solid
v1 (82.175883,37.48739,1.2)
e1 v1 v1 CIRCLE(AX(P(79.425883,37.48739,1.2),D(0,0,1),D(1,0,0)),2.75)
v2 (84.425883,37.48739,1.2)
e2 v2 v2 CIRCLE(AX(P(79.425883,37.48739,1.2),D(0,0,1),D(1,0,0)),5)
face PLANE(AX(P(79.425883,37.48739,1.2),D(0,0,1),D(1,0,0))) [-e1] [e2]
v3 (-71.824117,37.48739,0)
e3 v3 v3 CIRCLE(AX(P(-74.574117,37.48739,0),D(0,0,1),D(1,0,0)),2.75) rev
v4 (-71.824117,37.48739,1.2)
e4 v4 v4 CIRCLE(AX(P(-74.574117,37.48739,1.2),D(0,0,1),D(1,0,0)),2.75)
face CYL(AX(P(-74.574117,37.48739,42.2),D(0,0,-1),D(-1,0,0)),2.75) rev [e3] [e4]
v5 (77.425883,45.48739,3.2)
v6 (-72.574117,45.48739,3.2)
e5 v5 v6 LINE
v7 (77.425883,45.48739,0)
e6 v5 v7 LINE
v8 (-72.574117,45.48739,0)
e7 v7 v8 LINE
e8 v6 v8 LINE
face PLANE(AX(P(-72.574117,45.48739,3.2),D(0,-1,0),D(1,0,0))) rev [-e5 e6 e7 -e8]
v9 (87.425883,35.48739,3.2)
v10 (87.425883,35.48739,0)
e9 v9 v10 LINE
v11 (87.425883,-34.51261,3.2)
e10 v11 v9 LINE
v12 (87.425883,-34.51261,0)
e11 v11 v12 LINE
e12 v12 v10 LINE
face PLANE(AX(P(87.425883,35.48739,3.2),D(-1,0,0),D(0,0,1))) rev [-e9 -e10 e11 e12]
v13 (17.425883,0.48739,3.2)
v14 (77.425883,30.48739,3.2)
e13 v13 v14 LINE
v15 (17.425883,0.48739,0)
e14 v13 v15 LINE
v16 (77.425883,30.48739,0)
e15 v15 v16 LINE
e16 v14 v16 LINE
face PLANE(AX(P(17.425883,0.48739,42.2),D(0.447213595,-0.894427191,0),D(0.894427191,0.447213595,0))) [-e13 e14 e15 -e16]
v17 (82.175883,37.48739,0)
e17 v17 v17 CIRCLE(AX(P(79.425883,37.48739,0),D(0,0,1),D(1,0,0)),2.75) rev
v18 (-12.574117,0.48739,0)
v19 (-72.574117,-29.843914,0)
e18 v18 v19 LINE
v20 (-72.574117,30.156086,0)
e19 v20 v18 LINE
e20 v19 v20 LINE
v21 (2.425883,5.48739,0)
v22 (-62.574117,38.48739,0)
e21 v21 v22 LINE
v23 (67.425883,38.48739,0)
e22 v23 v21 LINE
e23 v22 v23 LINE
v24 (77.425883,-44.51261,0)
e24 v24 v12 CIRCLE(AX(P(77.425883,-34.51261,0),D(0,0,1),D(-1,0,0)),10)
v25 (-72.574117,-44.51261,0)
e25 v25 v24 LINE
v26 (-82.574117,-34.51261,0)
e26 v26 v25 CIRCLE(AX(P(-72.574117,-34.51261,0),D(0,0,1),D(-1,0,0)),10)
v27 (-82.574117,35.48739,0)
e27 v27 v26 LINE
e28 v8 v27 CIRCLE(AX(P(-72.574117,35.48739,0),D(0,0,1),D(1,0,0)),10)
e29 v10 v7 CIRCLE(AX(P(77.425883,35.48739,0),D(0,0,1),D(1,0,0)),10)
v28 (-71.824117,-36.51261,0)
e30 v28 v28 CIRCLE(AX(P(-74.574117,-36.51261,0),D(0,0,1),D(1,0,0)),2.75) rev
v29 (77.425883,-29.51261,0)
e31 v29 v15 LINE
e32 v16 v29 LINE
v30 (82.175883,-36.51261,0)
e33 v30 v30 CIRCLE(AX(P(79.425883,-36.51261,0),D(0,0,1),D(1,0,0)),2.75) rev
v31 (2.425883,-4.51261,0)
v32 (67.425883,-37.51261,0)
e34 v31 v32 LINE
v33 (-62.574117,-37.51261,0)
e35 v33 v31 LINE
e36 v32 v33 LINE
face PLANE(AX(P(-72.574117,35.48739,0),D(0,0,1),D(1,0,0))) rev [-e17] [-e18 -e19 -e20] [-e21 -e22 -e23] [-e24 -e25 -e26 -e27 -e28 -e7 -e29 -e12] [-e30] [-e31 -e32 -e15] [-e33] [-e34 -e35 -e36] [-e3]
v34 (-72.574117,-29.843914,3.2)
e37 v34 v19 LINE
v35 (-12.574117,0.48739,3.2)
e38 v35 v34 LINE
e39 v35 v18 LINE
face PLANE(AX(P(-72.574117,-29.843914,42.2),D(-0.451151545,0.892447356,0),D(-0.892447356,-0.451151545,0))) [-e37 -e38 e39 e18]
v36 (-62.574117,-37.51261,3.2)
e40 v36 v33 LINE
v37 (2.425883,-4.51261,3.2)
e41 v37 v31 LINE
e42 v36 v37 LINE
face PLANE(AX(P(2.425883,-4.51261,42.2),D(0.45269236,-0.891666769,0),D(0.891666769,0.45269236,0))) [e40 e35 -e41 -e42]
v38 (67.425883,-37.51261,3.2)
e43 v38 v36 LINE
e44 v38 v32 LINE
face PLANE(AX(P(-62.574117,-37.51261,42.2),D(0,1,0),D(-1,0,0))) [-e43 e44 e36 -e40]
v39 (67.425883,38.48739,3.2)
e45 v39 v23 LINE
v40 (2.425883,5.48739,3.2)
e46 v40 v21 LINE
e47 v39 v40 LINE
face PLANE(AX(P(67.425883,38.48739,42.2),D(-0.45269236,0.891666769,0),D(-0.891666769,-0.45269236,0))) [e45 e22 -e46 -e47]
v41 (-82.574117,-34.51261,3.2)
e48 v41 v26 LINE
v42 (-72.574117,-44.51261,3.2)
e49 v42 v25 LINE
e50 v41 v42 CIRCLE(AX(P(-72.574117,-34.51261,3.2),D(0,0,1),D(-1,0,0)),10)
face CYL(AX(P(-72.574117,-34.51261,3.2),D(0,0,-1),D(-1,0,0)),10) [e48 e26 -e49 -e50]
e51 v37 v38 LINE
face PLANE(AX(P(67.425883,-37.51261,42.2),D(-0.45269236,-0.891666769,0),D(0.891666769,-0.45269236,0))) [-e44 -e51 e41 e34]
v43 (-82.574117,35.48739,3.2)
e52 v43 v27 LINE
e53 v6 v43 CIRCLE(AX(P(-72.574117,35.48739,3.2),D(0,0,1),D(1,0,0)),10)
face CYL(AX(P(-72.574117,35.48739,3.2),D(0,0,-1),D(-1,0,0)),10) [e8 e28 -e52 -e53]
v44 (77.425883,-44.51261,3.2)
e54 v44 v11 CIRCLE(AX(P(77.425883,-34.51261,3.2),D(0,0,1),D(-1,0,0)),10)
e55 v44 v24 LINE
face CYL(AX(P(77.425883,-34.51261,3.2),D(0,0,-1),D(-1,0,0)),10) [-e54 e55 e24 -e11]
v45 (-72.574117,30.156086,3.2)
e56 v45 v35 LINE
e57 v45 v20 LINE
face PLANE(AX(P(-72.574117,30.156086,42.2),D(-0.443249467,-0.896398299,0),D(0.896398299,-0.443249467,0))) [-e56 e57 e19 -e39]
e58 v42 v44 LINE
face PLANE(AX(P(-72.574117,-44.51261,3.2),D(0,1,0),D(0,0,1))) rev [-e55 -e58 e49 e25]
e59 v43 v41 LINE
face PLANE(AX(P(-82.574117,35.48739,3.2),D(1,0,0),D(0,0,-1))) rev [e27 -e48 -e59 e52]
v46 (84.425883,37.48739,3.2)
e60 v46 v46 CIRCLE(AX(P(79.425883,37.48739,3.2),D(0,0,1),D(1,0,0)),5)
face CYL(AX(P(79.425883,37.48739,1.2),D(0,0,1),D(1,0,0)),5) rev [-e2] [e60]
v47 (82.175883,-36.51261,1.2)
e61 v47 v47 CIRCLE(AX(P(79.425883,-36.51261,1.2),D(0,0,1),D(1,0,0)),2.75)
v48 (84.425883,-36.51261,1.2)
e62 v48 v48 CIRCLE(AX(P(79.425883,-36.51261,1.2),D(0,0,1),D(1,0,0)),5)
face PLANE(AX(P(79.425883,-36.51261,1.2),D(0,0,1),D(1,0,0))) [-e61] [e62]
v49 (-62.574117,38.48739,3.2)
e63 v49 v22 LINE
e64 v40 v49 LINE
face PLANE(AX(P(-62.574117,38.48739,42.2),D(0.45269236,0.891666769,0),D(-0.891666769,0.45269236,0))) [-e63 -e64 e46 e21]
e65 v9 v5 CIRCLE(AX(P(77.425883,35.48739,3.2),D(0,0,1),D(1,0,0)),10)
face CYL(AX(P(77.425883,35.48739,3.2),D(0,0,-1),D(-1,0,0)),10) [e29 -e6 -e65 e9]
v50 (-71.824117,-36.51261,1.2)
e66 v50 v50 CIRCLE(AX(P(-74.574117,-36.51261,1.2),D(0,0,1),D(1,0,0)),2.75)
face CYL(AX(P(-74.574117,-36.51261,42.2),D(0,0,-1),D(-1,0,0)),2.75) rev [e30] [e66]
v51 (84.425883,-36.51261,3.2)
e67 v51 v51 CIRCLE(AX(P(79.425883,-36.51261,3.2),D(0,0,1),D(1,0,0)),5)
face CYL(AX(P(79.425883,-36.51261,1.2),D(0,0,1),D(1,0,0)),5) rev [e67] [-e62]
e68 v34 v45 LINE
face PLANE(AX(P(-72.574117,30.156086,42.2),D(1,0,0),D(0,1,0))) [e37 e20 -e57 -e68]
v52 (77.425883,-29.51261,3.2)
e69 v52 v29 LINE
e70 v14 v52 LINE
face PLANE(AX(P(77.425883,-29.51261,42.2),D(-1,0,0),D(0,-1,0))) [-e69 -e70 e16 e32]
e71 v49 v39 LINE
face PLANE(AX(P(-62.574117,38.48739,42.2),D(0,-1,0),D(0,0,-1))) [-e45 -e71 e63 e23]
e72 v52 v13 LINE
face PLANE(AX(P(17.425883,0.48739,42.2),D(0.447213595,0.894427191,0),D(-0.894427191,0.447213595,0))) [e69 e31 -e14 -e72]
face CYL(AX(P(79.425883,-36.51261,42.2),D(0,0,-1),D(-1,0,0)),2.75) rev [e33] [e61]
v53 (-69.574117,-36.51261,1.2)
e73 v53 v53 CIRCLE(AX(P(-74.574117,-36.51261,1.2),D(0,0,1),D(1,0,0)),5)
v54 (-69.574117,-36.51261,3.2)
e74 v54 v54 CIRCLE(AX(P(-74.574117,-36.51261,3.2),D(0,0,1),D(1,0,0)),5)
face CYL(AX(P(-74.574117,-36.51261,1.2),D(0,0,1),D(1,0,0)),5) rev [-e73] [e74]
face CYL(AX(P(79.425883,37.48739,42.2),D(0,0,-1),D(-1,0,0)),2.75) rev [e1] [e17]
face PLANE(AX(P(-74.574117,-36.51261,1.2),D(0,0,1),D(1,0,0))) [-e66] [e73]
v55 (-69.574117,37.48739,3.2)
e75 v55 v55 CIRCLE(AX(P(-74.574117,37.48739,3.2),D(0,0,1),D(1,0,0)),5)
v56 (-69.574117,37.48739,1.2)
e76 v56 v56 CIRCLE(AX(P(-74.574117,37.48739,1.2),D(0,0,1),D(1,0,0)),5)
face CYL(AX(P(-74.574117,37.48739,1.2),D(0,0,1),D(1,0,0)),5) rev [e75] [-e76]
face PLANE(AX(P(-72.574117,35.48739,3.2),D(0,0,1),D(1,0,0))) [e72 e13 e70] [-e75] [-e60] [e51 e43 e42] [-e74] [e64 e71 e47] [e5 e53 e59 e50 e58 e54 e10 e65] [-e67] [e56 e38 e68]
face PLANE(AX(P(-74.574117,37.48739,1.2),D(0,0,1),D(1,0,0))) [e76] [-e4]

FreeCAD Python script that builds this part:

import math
import FreeCAD as App
import Part
import Sketcher


def add_polygon(sketch, points):
    """Adds a closed chain of lines whose ends are joined by coincident constraints."""
    first, n = sketch.GeometryCount, len(points)
    for a, b in zip(points, points[1:] + points[:1]):
        sketch.addGeometry(Part.LineSegment(App.Vector(*a, 0), App.Vector(*b, 0)), False)
    for i in range(n):
        sketch.addConstraint(Sketcher.Constraint("Coincident", first + i, 2, first + (i + 1) % n, 1))

doc = App.newDocument("Part")
params = doc.addObject("Spreadsheet::Sheet", "Params")
for row, (alias, value) in enumerate([
    ("sketch1_radius", "10 mm"),
    ("sketch1_width", "150 mm"),
    ("sketch1_height", "70 mm"),
    ("pad1_length", "3.2 mm"),
    ("sketch2_diameter", "5.5 mm"),
    ("sketch2_width", "130 mm"),
    ("sketch2_height", "60 mm"),
    ("sketch3_diameter", "10 mm"),
    ("pocket2_length", "2 mm"),
], start=1):
    params.set(f"A{row}", alias)
    params.set(f"B{row}", "=" + value)
    params.setAlias(f"B{row}", alias)

body = doc.addObject("PartDesign::Body", "Body")

sketch1 = body.newObject("Sketcher::SketchObject", "Sketch")
sketch1.AttachmentSupport = (doc.getObject("XY_Plane"), [""])
sketch1.MapMode = "FlatFace"
sketch1.addGeometry([
    Part.LineSegment(App.Vector(77, 45, 0), App.Vector(-73, 45, 0)),
    Part.ArcOfCircle(Part.Circle(App.Vector(-73, 35, 0), App.Vector(0, 0, 1), 10), math.radians(90), math.radians(180)),
    Part.LineSegment(App.Vector(-83, 35, 0), App.Vector(-83, -35, 0)),
    Part.ArcOfCircle(Part.Circle(App.Vector(-73, -35, 0), App.Vector(0, 0, 1), 10), math.radians(180), math.radians(270)),
    Part.LineSegment(App.Vector(-73, -45, 0), App.Vector(77, -45, 0)),
    Part.ArcOfCircle(Part.Circle(App.Vector(77, -35, 0), App.Vector(0, 0, 1), 10), math.radians(-90), math.radians(0)),
    Part.LineSegment(App.Vector(87, -35, 0), App.Vector(87, 35, 0)),
    Part.ArcOfCircle(Part.Circle(App.Vector(77, 35, 0), App.Vector(0, 0, 1), 10), math.radians(0), math.radians(90)),
], False)
sketch1.addConstraint([
    Sketcher.Constraint("Tangent", 0, 2, 1, 1),
    Sketcher.Constraint("Tangent", 1, 2, 2, 1),
    Sketcher.Constraint("Tangent", 2, 2, 3, 1),
    Sketcher.Constraint("Tangent", 3, 2, 4, 1),
    Sketcher.Constraint("Tangent", 4, 2, 5, 1),
    Sketcher.Constraint("Tangent", 5, 2, 6, 1),
    Sketcher.Constraint("Tangent", 6, 2, 7, 1),
    Sketcher.Constraint("Tangent", 7, 2, 0, 1),
    Sketcher.Constraint("Horizontal", 0),
    Sketcher.Constraint("Vertical", 2),
    Sketcher.Constraint("Horizontal", 4),
    Sketcher.Constraint("Vertical", 6),
    Sketcher.Constraint("Equal", 1, 3),
    Sketcher.Constraint("Equal", 3, 5),
    Sketcher.Constraint("Equal", 5, 7),
    Sketcher.Constraint("Radius", 1, 10.0),
    Sketcher.Constraint("DistanceX", 0, 2, 0, 1, 150.0),
    Sketcher.Constraint("DistanceY", 2, 2, 2, 1, 70.0),
    Sketcher.Constraint("DistanceY", -1, 1, 1, 3, 35.48739),
    Sketcher.Constraint("DistanceX", 1, 3, -1, 1, 72.574117),
])
sketch1.setExpression("Constraints[15]", "Params.sketch1_radius")
sketch1.setExpression("Constraints[16]", "Params.sketch1_width")
sketch1.setExpression("Constraints[17]", "Params.sketch1_height")
pad1 = body.newObject("PartDesign::Pad", "Pad")
pad1.Profile = sketch1
pad1.setExpression("Length", "Params.pad1_length")

sketch2 = body.newObject("Sketcher::SketchObject", "Sketch001")
sketch2.AttachmentSupport = (doc.getObject("XY_Plane"), [""])
sketch2.MapMode = "FlatFace"
sketch2.AttachmentOffset = App.Placement(App.Vector(0, 0, 3.2), App.Rotation())
sketch2.addGeometry(Part.Circle(App.Vector(-74.6, 37.5, 0), App.Vector(0, 0, 1), 2.8), False)
sketch2.addGeometry(Part.Circle(App.Vector(-74.6, -36.5, 0), App.Vector(0, 0, 1), 2.8), False)
sketch2.addGeometry(Part.Circle(App.Vector(79.4, 37.5, 0), App.Vector(0, 0, 1), 2.8), False)
sketch2.addGeometry(Part.Circle(App.Vector(79.4, -36.5, 0), App.Vector(0, 0, 1), 2.8), False)
add_polygon(sketch2, [(-62.6, 38.5), (2.4, 5.5), (67.4, 38.5)])
add_polygon(sketch2, [(-12.6, 0.5), (-72.6, 30.2), (-72.6, -29.8)])
add_polygon(sketch2, [(2.4, -4.5), (-62.6, -37.5), (67.4, -37.5)])
add_polygon(sketch2, [(77.4, 30.5), (17.4, 0.5), (77.4, -29.5)])
sketch2.addConstraint([
    Sketcher.Constraint("Horizontal", 6),
    Sketcher.Constraint("Vertical", 8),
    Sketcher.Constraint("Horizontal", 11),
    Sketcher.Constraint("Vertical", 15),
    Sketcher.Constraint("Equal", 0, 1),
    Sketcher.Constraint("Equal", 1, 2),
    Sketcher.Constraint("Equal", 2, 3),
    Sketcher.Constraint("Parallel", 5, 10),
    Sketcher.Constraint("Parallel", 4, 12),
    Sketcher.Constraint("Horizontal", 0, 3, 2, 3),
    Sketcher.Constraint("Horizontal", 1, 3, 3, 3),
    Sketcher.Constraint("Horizontal", 9, 2, 13, 2),
    Sketcher.Constraint("Vertical", 0, 3, 1, 3),
    Sketcher.Constraint("Vertical", 2, 3, 3, 3),
    Sketcher.Constraint("Vertical", 6, 2, 10, 2),
    Sketcher.Constraint("Vertical", 5, 2, 11, 2),
    Sketcher.Constraint("Vertical", 4, 2, 12, 2),
    Sketcher.Constraint("Equal", 8, 15),
    Sketcher.Constraint("Equal", 13, 14),
    Sketcher.Constraint("Diameter", 0, 5.5),
    Sketcher.Constraint("DistanceX", 6, 2, 6, 1, 130.0),
    Sketcher.Constraint("DistanceY", 8, 2, 8, 1, 60.0),
    Sketcher.Constraint("DistanceY", 1, 3, 0, 3, 74.0),
    Sketcher.Constraint("DistanceX", 0, 3, 2, 3, 154.0),
    Sketcher.Constraint("DistanceX", 0, 3, 4, 2, 77.0),
    Sketcher.Constraint("DistanceY", 4, 2, 0, 3, 32.0),
    Sketcher.Constraint("DistanceY", 2, 3, 5, 2, 1.0),
    Sketcher.Constraint("DistanceX", 0, 3, 7, 2, 2.0),
    Sketcher.Constraint("DistanceX", 9, 2, 4, 2, 15.0),
    Sketcher.Constraint("DistanceY", 9, 2, 4, 2, 5.0),
    Sketcher.Constraint("DistanceY", 10, 2, 1, 3, 1.0),
    Sketcher.Constraint("DistanceX", 4, 2, 13, 2, 15.0),
    Sketcher.Constraint("DistanceX", 14, 2, 3, 3, 2.0),
    Sketcher.Constraint("Distance", 7, 66.934531),
    Sketcher.Constraint("DistanceY", -1, 1, 0, 3, 37.48739),
    Sketcher.Constraint("DistanceX", 0, 3, -1, 1, 74.574117),
])
sketch2.setExpression("Constraints[31]", "Params.sketch2_diameter")
sketch2.setExpression("Constraints[32]", "Params.sketch2_width")
sketch2.setExpression("Constraints[33]", "Params.sketch2_height")
pocket1 = body.newObject("PartDesign::Pocket", "Pocket")
pocket1.Profile = sketch2
pocket1.Type = "ThroughAll"
pocket1.Midplane = True

sketch3 = body.newObject("Sketcher::SketchObject", "Sketch002")
sketch3.AttachmentSupport = (doc.getObject("XY_Plane"), [""])
sketch3.MapMode = "FlatFace"
sketch3.AttachmentOffset = App.Placement(App.Vector(0, 0, 3.2), App.Rotation())
sketch3.addGeometry([
    Part.Circle(App.Vector(-75, 37, 0), App.Vector(0, 0, 1), 5),
    Part.Circle(App.Vector(79, 37, 0), App.Vector(0, 0, 1), 5),
    Part.Circle(App.Vector(79, -37, 0), App.Vector(0, 0, 1), 5),
    Part.Circle(App.Vector(-75, -37, 0), App.Vector(0, 0, 1), 5),
], False)
sketch3.addConstraint([
    Sketcher.Constraint("Equal", 0, 1),
    Sketcher.Constraint("Equal", 1, 2),
    Sketcher.Constraint("Equal", 2, 3),
    Sketcher.Constraint("Horizontal", 0, 3, 1, 3),
    Sketcher.Constraint("Horizontal", 2, 3, 3, 3),
    Sketcher.Constraint("Vertical", 1, 3, 2, 3),
    Sketcher.Constraint("Vertical", 0, 3, 3, 3),
    Sketcher.Constraint("Diameter", 0, 10.0),
    Sketcher.Constraint("DistanceX", 0, 3, 1, 3, 154.0),
    Sketcher.Constraint("DistanceY", 2, 3, 1, 3, 74.0),
    Sketcher.Constraint("DistanceY", -1, 1, 0, 3, 37.48739),
    Sketcher.Constraint("DistanceX", 0, 3, -1, 1, 74.574117),
])
sketch3.setExpression("Constraints[7]", "Params.sketch3_diameter")
pocket2 = body.newObject("PartDesign::Pocket", "Pocket001")
pocket2.Profile = sketch3
pocket2.setExpression("Length", "Params.pocket2_length")

doc.recompute()
